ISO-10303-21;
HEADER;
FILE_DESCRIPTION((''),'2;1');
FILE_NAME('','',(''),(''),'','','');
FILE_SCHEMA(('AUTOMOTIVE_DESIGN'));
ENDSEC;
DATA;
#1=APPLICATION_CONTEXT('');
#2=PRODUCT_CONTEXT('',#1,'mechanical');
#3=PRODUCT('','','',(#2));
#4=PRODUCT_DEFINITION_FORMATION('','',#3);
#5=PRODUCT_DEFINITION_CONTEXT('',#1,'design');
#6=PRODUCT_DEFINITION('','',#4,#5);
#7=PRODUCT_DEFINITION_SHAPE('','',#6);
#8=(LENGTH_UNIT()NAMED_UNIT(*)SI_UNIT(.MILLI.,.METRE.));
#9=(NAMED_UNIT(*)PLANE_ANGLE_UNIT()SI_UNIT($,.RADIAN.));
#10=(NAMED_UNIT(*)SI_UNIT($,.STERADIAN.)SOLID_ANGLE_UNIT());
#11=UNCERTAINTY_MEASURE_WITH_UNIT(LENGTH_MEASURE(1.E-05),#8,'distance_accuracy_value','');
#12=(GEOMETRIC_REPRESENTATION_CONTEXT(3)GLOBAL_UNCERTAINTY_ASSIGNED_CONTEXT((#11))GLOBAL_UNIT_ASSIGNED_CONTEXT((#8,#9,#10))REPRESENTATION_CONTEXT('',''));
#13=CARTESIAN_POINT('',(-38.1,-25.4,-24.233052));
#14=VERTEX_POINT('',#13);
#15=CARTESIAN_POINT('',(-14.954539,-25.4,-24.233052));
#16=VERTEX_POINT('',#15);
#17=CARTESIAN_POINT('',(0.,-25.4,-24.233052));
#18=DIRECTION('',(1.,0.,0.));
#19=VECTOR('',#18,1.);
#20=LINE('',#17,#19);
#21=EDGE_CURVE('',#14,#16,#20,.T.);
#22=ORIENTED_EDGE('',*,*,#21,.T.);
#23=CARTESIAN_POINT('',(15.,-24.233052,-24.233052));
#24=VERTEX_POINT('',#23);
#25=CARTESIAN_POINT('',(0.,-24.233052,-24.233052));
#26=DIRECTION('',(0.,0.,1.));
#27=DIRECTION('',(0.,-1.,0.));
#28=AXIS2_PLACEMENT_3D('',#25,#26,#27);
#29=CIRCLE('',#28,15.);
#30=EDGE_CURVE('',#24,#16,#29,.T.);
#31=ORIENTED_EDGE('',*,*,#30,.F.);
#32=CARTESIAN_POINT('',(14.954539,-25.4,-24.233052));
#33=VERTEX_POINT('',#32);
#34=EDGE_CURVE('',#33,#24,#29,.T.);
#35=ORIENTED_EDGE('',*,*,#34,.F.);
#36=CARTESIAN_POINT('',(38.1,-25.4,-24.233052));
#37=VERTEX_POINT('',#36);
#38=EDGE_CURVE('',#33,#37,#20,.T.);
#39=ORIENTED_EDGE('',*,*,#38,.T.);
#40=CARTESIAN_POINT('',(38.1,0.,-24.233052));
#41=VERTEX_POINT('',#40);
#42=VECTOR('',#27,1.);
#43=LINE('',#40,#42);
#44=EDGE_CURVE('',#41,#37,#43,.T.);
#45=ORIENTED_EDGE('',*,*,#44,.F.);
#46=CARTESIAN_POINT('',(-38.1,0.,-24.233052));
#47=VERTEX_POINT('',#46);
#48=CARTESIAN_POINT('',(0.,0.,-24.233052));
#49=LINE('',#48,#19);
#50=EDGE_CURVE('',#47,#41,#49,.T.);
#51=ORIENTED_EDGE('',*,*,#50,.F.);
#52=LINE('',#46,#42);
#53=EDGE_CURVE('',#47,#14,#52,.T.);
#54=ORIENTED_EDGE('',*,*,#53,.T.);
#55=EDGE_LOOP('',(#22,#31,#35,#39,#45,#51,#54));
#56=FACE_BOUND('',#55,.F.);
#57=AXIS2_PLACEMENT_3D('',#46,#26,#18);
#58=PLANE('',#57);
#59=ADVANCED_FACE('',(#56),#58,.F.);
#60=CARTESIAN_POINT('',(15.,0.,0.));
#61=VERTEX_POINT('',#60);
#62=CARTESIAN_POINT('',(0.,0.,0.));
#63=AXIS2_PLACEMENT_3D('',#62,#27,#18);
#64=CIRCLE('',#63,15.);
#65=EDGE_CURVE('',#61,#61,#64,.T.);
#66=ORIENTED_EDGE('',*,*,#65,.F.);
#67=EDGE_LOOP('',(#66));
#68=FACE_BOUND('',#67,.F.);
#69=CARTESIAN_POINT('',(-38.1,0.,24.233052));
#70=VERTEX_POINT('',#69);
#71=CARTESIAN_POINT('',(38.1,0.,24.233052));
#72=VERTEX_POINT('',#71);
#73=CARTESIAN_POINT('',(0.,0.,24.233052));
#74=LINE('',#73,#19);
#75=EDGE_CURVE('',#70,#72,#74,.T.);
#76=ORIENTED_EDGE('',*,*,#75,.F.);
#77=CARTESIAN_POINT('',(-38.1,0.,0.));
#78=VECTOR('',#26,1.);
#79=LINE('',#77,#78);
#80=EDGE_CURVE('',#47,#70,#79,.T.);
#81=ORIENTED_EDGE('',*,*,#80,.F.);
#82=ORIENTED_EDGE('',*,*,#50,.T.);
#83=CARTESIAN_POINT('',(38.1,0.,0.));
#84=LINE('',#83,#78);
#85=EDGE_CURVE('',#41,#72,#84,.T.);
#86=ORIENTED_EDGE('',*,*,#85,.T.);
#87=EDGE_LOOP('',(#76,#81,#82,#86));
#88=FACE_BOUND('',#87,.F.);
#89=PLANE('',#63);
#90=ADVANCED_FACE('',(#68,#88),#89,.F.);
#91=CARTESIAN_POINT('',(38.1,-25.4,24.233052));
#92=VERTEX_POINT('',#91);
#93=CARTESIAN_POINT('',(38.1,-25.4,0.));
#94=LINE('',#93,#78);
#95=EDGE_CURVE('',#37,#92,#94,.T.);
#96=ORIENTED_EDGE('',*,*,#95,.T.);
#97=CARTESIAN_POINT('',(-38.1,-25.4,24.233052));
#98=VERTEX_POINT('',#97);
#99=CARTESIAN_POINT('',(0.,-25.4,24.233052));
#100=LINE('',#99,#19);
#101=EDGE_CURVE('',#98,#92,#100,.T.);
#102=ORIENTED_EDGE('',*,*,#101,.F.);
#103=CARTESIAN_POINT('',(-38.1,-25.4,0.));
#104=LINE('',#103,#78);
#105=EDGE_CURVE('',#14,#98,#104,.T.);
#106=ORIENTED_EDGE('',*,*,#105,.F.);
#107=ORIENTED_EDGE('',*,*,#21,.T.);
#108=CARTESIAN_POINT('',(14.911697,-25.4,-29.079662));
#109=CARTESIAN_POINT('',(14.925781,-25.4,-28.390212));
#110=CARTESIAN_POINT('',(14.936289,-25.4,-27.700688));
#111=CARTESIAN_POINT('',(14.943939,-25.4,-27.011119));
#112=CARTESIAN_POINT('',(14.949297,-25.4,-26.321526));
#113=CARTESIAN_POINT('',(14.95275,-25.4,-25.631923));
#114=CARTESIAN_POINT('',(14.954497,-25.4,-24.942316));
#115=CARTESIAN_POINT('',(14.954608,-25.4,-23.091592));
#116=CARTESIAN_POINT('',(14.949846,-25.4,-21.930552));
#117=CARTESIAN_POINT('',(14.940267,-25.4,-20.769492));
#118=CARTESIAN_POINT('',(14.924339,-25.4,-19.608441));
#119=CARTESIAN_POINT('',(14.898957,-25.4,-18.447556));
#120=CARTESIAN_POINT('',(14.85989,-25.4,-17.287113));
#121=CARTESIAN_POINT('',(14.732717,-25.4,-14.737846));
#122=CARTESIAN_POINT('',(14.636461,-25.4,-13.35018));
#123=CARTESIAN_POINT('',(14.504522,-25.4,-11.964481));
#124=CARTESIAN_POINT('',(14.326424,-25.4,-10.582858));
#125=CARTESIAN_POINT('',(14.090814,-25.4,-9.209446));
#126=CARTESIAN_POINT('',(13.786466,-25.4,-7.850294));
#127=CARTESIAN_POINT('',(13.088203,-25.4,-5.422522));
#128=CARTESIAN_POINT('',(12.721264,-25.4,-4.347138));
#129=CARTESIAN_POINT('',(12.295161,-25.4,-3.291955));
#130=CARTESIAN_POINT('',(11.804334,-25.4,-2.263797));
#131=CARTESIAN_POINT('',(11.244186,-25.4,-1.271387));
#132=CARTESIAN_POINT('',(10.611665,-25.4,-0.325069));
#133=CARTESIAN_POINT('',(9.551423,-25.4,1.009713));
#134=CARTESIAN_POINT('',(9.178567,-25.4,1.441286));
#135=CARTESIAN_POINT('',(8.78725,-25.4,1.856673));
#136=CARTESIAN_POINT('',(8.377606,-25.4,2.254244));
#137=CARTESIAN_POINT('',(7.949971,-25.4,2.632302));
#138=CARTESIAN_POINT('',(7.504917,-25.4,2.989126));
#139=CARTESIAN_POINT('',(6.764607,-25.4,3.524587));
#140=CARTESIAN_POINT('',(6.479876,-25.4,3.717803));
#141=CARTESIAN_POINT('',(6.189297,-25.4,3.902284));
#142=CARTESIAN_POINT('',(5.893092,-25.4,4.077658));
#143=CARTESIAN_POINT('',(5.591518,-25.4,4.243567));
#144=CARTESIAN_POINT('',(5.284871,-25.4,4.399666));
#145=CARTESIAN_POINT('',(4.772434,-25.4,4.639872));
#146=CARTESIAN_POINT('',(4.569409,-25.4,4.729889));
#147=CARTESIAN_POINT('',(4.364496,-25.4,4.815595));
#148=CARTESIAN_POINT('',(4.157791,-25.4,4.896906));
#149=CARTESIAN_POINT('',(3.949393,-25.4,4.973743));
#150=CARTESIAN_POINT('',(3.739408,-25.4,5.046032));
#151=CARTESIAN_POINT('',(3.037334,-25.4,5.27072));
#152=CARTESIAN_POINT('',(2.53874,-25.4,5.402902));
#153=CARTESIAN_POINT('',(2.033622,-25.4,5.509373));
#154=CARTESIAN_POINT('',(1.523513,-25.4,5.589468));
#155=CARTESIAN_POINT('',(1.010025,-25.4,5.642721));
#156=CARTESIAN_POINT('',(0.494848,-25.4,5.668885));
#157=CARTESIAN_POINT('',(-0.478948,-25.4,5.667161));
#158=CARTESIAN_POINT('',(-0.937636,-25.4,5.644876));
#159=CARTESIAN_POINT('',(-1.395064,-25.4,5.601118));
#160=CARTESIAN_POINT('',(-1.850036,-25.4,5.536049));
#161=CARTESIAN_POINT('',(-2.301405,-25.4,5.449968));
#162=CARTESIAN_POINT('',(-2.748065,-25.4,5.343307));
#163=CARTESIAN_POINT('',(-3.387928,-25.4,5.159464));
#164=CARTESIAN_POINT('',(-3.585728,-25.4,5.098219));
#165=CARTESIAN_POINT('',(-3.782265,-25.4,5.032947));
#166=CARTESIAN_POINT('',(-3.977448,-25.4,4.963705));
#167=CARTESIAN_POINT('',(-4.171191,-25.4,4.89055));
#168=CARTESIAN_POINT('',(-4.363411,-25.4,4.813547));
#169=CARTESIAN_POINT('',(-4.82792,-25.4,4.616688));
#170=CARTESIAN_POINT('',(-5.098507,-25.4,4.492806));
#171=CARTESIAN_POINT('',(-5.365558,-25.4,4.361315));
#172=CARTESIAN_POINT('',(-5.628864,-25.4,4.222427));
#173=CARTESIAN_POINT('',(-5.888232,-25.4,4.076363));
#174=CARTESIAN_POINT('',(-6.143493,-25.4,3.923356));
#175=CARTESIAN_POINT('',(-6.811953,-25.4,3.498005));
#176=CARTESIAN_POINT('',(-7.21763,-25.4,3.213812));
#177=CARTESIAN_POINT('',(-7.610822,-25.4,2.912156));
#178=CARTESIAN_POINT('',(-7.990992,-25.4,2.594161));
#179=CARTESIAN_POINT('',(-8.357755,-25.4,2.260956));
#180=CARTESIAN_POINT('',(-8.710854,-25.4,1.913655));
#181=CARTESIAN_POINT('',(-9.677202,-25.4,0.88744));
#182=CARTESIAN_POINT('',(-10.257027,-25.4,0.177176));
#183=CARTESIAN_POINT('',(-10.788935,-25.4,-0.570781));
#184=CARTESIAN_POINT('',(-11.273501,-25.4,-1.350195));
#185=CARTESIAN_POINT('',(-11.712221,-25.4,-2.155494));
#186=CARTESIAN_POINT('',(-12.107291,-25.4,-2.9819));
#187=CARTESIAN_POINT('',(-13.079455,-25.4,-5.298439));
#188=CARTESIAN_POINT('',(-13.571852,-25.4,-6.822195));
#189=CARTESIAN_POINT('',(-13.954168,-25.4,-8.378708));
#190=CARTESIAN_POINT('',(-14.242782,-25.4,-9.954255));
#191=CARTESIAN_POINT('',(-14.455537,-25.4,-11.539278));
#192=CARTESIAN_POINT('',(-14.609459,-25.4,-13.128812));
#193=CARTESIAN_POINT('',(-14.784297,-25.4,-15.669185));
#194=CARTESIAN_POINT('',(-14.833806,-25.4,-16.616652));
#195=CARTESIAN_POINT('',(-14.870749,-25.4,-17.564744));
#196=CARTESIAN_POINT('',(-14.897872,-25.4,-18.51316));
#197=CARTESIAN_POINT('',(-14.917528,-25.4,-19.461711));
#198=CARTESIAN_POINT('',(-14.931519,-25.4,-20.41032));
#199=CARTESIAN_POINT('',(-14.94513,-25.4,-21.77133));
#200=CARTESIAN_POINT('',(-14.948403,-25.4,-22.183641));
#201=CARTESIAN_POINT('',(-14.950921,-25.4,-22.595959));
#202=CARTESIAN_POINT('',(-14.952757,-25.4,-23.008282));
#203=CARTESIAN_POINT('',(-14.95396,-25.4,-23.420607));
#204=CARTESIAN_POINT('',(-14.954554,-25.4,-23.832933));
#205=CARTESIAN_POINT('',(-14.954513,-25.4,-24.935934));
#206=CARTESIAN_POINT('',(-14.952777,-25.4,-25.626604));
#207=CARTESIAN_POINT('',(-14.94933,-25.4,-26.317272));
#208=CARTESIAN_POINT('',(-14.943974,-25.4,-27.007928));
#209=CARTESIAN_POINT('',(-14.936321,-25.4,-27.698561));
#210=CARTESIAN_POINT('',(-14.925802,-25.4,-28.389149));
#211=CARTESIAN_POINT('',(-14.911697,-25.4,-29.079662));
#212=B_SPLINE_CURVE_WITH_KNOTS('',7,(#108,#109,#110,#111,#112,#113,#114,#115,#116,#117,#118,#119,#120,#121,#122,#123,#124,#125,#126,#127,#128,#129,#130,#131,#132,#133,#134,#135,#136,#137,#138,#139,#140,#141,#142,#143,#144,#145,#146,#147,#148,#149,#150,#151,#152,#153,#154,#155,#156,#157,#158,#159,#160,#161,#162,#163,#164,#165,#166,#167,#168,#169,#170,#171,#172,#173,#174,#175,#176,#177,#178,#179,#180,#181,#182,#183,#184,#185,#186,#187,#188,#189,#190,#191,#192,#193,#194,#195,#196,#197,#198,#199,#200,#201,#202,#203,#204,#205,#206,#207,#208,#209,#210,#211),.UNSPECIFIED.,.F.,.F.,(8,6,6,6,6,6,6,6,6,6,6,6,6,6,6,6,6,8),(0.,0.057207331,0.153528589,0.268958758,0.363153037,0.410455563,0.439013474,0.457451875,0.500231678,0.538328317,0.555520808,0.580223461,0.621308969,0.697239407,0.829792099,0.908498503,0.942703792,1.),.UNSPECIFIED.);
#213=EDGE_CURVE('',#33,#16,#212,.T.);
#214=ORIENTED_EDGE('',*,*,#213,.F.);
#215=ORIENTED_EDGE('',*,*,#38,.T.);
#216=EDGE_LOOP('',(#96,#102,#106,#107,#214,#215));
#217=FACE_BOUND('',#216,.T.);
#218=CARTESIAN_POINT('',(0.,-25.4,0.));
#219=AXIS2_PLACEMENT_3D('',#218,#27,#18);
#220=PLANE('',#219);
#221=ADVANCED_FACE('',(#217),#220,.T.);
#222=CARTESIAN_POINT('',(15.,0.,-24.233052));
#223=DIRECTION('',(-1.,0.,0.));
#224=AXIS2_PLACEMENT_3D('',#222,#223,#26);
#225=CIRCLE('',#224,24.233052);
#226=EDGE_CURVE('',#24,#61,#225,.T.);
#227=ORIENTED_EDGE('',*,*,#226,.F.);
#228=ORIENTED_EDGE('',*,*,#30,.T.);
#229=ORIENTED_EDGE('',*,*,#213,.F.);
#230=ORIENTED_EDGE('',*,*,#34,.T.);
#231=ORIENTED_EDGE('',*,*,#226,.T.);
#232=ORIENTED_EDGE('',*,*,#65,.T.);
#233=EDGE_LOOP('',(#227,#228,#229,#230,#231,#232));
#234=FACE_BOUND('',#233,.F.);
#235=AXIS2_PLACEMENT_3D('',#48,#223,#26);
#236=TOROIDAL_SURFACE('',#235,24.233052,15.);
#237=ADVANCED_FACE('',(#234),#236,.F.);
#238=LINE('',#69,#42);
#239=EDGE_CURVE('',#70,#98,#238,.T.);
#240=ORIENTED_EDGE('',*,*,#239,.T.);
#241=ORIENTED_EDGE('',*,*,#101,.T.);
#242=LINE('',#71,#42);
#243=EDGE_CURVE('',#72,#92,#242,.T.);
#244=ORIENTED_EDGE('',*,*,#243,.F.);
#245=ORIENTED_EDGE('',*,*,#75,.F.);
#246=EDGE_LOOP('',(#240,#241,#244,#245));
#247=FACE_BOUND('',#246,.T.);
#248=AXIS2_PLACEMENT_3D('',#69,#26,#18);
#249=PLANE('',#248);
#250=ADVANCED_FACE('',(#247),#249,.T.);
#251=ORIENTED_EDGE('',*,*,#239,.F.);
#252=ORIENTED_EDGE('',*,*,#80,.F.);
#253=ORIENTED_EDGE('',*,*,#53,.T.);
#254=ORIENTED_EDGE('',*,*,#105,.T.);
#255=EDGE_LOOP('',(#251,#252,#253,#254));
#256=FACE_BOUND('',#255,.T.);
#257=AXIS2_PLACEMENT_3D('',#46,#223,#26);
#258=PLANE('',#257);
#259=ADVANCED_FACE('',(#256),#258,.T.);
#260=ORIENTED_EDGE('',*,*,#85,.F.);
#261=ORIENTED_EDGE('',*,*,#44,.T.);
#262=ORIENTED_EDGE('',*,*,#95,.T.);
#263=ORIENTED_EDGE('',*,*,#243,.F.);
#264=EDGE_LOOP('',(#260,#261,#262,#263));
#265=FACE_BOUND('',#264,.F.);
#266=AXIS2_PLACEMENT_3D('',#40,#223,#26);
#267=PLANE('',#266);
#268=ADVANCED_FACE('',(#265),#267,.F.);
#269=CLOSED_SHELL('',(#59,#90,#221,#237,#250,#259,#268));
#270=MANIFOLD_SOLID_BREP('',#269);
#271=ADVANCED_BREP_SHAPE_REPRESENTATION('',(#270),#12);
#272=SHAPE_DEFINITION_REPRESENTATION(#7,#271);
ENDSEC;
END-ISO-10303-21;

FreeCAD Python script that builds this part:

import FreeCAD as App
import Part
import Sketcher
Q = App.Units.Quantity

doc = App.newDocument("Part")
params = doc.addObject("Spreadsheet::Sheet", "Params")
for row, (alias, value) in enumerate([
    ("sketch1_width", "3 in"),
    ("pad1_length", "1 in"),
    ("groove_angle", "360 deg"),
], start=1):
    params.set(f"A{row}", alias)
    params.set(f"B{row}", "=" + value)
    params.setAlias(f"B{row}", alias)

body = doc.addObject("PartDesign::Body", "Body")

sketch1 = body.newObject("Sketcher::SketchObject", "Sketch")
sketch1.AttachmentSupport = (doc.getObject("XZ_Plane"), [""])
sketch1.MapMode = "FlatFace"
sketch1.addGeometry(Part.LineSegment(App.Vector(-38, 24, 0), App.Vector(-38, -24, 0)), False)
sketch1.addGeometry(Part.LineSegment(App.Vector(-38, -24, 0), App.Vector(38, -24, 0)), False)
sketch1.addGeometry(Part.LineSegment(App.Vector(38, -24, 0), App.Vector(38, 24, 0)), False)
sketch1.addGeometry(Part.LineSegment(App.Vector(38, 24, 0), App.Vector(-38, 24, 0)), False)
sketch1.addConstraint(Sketcher.Constraint("Coincident", 0, 2, 1, 1))
sketch1.addConstraint(Sketcher.Constraint("Coincident", 1, 2, 2, 1))
sketch1.addConstraint(Sketcher.Constraint("Coincident", 2, 2, 3, 1))
sketch1.addConstraint(Sketcher.Constraint("Coincident", 3, 2, 0, 1))
sketch1.addConstraint(Sketcher.Constraint("Vertical", 0))
sketch1.addConstraint(Sketcher.Constraint("Horizontal", 1))
sketch1.addConstraint(Sketcher.Constraint("Vertical", 2))
sketch1.addConstraint(Sketcher.Constraint("Horizontal", 3))
sketch1.addConstraint(Sketcher.Constraint("Symmetric", 0, 2, 2, 2, -1, 1))
sketch1.addConstraint(Sketcher.Constraint("DistanceX", 1, 1, 1, 2, Q("3 in")))
sketch1.addConstraint(Sketcher.Constraint("DistanceY", 0, 2, 0, 1, 48.466104))
sketch1.setExpression("Constraints[9]", "Params.sketch1_width")
pad1 = body.newObject("PartDesign::Pad", "Pad")
pad1.Profile = sketch1
pad1.setExpression("Length", "Params.pad1_length")

sketch2 = body.newObject("Sketcher::SketchObject", "Sketch001")
sketch2.AttachmentSupport = (doc.getObject("XZ_Plane"), [""])
sketch2.MapMode = "FlatFace"
sketch2.addGeometry(Part.Circle(App.Vector(0, 0, 0), App.Vector(0, 0, 1), 15), False)
sketch2.addGeometry(Part.LineSegment(App.Vector(0, -24, 0), App.Vector(-10, -24, 0)), True)
sketch2.addConstraint(Sketcher.Constraint("Horizontal", 1))
sketch2.addConstraint(Sketcher.Constraint("Coincident", 0, 3, -1, 1))
sketch2.addConstraint(Sketcher.Constraint("PointOnObject", 1, 1, -2))
sketch2.addConstraint(Sketcher.Constraint("Diameter", 0, 30.0))
sketch2.addConstraint(Sketcher.Constraint("DistanceX", 1, 2, 1, 1, 10.0))
sketch2.addConstraint(Sketcher.Constraint("DistanceY", 1, 1, -1, 1, 24.233052))
groove = body.newObject("PartDesign::Groove", "Groove")
groove.Profile = sketch2
groove.ReferenceAxis = (sketch2, ["Axis0"])
groove.setExpression("Angle", "Params.groove_angle")

doc.recompute()
